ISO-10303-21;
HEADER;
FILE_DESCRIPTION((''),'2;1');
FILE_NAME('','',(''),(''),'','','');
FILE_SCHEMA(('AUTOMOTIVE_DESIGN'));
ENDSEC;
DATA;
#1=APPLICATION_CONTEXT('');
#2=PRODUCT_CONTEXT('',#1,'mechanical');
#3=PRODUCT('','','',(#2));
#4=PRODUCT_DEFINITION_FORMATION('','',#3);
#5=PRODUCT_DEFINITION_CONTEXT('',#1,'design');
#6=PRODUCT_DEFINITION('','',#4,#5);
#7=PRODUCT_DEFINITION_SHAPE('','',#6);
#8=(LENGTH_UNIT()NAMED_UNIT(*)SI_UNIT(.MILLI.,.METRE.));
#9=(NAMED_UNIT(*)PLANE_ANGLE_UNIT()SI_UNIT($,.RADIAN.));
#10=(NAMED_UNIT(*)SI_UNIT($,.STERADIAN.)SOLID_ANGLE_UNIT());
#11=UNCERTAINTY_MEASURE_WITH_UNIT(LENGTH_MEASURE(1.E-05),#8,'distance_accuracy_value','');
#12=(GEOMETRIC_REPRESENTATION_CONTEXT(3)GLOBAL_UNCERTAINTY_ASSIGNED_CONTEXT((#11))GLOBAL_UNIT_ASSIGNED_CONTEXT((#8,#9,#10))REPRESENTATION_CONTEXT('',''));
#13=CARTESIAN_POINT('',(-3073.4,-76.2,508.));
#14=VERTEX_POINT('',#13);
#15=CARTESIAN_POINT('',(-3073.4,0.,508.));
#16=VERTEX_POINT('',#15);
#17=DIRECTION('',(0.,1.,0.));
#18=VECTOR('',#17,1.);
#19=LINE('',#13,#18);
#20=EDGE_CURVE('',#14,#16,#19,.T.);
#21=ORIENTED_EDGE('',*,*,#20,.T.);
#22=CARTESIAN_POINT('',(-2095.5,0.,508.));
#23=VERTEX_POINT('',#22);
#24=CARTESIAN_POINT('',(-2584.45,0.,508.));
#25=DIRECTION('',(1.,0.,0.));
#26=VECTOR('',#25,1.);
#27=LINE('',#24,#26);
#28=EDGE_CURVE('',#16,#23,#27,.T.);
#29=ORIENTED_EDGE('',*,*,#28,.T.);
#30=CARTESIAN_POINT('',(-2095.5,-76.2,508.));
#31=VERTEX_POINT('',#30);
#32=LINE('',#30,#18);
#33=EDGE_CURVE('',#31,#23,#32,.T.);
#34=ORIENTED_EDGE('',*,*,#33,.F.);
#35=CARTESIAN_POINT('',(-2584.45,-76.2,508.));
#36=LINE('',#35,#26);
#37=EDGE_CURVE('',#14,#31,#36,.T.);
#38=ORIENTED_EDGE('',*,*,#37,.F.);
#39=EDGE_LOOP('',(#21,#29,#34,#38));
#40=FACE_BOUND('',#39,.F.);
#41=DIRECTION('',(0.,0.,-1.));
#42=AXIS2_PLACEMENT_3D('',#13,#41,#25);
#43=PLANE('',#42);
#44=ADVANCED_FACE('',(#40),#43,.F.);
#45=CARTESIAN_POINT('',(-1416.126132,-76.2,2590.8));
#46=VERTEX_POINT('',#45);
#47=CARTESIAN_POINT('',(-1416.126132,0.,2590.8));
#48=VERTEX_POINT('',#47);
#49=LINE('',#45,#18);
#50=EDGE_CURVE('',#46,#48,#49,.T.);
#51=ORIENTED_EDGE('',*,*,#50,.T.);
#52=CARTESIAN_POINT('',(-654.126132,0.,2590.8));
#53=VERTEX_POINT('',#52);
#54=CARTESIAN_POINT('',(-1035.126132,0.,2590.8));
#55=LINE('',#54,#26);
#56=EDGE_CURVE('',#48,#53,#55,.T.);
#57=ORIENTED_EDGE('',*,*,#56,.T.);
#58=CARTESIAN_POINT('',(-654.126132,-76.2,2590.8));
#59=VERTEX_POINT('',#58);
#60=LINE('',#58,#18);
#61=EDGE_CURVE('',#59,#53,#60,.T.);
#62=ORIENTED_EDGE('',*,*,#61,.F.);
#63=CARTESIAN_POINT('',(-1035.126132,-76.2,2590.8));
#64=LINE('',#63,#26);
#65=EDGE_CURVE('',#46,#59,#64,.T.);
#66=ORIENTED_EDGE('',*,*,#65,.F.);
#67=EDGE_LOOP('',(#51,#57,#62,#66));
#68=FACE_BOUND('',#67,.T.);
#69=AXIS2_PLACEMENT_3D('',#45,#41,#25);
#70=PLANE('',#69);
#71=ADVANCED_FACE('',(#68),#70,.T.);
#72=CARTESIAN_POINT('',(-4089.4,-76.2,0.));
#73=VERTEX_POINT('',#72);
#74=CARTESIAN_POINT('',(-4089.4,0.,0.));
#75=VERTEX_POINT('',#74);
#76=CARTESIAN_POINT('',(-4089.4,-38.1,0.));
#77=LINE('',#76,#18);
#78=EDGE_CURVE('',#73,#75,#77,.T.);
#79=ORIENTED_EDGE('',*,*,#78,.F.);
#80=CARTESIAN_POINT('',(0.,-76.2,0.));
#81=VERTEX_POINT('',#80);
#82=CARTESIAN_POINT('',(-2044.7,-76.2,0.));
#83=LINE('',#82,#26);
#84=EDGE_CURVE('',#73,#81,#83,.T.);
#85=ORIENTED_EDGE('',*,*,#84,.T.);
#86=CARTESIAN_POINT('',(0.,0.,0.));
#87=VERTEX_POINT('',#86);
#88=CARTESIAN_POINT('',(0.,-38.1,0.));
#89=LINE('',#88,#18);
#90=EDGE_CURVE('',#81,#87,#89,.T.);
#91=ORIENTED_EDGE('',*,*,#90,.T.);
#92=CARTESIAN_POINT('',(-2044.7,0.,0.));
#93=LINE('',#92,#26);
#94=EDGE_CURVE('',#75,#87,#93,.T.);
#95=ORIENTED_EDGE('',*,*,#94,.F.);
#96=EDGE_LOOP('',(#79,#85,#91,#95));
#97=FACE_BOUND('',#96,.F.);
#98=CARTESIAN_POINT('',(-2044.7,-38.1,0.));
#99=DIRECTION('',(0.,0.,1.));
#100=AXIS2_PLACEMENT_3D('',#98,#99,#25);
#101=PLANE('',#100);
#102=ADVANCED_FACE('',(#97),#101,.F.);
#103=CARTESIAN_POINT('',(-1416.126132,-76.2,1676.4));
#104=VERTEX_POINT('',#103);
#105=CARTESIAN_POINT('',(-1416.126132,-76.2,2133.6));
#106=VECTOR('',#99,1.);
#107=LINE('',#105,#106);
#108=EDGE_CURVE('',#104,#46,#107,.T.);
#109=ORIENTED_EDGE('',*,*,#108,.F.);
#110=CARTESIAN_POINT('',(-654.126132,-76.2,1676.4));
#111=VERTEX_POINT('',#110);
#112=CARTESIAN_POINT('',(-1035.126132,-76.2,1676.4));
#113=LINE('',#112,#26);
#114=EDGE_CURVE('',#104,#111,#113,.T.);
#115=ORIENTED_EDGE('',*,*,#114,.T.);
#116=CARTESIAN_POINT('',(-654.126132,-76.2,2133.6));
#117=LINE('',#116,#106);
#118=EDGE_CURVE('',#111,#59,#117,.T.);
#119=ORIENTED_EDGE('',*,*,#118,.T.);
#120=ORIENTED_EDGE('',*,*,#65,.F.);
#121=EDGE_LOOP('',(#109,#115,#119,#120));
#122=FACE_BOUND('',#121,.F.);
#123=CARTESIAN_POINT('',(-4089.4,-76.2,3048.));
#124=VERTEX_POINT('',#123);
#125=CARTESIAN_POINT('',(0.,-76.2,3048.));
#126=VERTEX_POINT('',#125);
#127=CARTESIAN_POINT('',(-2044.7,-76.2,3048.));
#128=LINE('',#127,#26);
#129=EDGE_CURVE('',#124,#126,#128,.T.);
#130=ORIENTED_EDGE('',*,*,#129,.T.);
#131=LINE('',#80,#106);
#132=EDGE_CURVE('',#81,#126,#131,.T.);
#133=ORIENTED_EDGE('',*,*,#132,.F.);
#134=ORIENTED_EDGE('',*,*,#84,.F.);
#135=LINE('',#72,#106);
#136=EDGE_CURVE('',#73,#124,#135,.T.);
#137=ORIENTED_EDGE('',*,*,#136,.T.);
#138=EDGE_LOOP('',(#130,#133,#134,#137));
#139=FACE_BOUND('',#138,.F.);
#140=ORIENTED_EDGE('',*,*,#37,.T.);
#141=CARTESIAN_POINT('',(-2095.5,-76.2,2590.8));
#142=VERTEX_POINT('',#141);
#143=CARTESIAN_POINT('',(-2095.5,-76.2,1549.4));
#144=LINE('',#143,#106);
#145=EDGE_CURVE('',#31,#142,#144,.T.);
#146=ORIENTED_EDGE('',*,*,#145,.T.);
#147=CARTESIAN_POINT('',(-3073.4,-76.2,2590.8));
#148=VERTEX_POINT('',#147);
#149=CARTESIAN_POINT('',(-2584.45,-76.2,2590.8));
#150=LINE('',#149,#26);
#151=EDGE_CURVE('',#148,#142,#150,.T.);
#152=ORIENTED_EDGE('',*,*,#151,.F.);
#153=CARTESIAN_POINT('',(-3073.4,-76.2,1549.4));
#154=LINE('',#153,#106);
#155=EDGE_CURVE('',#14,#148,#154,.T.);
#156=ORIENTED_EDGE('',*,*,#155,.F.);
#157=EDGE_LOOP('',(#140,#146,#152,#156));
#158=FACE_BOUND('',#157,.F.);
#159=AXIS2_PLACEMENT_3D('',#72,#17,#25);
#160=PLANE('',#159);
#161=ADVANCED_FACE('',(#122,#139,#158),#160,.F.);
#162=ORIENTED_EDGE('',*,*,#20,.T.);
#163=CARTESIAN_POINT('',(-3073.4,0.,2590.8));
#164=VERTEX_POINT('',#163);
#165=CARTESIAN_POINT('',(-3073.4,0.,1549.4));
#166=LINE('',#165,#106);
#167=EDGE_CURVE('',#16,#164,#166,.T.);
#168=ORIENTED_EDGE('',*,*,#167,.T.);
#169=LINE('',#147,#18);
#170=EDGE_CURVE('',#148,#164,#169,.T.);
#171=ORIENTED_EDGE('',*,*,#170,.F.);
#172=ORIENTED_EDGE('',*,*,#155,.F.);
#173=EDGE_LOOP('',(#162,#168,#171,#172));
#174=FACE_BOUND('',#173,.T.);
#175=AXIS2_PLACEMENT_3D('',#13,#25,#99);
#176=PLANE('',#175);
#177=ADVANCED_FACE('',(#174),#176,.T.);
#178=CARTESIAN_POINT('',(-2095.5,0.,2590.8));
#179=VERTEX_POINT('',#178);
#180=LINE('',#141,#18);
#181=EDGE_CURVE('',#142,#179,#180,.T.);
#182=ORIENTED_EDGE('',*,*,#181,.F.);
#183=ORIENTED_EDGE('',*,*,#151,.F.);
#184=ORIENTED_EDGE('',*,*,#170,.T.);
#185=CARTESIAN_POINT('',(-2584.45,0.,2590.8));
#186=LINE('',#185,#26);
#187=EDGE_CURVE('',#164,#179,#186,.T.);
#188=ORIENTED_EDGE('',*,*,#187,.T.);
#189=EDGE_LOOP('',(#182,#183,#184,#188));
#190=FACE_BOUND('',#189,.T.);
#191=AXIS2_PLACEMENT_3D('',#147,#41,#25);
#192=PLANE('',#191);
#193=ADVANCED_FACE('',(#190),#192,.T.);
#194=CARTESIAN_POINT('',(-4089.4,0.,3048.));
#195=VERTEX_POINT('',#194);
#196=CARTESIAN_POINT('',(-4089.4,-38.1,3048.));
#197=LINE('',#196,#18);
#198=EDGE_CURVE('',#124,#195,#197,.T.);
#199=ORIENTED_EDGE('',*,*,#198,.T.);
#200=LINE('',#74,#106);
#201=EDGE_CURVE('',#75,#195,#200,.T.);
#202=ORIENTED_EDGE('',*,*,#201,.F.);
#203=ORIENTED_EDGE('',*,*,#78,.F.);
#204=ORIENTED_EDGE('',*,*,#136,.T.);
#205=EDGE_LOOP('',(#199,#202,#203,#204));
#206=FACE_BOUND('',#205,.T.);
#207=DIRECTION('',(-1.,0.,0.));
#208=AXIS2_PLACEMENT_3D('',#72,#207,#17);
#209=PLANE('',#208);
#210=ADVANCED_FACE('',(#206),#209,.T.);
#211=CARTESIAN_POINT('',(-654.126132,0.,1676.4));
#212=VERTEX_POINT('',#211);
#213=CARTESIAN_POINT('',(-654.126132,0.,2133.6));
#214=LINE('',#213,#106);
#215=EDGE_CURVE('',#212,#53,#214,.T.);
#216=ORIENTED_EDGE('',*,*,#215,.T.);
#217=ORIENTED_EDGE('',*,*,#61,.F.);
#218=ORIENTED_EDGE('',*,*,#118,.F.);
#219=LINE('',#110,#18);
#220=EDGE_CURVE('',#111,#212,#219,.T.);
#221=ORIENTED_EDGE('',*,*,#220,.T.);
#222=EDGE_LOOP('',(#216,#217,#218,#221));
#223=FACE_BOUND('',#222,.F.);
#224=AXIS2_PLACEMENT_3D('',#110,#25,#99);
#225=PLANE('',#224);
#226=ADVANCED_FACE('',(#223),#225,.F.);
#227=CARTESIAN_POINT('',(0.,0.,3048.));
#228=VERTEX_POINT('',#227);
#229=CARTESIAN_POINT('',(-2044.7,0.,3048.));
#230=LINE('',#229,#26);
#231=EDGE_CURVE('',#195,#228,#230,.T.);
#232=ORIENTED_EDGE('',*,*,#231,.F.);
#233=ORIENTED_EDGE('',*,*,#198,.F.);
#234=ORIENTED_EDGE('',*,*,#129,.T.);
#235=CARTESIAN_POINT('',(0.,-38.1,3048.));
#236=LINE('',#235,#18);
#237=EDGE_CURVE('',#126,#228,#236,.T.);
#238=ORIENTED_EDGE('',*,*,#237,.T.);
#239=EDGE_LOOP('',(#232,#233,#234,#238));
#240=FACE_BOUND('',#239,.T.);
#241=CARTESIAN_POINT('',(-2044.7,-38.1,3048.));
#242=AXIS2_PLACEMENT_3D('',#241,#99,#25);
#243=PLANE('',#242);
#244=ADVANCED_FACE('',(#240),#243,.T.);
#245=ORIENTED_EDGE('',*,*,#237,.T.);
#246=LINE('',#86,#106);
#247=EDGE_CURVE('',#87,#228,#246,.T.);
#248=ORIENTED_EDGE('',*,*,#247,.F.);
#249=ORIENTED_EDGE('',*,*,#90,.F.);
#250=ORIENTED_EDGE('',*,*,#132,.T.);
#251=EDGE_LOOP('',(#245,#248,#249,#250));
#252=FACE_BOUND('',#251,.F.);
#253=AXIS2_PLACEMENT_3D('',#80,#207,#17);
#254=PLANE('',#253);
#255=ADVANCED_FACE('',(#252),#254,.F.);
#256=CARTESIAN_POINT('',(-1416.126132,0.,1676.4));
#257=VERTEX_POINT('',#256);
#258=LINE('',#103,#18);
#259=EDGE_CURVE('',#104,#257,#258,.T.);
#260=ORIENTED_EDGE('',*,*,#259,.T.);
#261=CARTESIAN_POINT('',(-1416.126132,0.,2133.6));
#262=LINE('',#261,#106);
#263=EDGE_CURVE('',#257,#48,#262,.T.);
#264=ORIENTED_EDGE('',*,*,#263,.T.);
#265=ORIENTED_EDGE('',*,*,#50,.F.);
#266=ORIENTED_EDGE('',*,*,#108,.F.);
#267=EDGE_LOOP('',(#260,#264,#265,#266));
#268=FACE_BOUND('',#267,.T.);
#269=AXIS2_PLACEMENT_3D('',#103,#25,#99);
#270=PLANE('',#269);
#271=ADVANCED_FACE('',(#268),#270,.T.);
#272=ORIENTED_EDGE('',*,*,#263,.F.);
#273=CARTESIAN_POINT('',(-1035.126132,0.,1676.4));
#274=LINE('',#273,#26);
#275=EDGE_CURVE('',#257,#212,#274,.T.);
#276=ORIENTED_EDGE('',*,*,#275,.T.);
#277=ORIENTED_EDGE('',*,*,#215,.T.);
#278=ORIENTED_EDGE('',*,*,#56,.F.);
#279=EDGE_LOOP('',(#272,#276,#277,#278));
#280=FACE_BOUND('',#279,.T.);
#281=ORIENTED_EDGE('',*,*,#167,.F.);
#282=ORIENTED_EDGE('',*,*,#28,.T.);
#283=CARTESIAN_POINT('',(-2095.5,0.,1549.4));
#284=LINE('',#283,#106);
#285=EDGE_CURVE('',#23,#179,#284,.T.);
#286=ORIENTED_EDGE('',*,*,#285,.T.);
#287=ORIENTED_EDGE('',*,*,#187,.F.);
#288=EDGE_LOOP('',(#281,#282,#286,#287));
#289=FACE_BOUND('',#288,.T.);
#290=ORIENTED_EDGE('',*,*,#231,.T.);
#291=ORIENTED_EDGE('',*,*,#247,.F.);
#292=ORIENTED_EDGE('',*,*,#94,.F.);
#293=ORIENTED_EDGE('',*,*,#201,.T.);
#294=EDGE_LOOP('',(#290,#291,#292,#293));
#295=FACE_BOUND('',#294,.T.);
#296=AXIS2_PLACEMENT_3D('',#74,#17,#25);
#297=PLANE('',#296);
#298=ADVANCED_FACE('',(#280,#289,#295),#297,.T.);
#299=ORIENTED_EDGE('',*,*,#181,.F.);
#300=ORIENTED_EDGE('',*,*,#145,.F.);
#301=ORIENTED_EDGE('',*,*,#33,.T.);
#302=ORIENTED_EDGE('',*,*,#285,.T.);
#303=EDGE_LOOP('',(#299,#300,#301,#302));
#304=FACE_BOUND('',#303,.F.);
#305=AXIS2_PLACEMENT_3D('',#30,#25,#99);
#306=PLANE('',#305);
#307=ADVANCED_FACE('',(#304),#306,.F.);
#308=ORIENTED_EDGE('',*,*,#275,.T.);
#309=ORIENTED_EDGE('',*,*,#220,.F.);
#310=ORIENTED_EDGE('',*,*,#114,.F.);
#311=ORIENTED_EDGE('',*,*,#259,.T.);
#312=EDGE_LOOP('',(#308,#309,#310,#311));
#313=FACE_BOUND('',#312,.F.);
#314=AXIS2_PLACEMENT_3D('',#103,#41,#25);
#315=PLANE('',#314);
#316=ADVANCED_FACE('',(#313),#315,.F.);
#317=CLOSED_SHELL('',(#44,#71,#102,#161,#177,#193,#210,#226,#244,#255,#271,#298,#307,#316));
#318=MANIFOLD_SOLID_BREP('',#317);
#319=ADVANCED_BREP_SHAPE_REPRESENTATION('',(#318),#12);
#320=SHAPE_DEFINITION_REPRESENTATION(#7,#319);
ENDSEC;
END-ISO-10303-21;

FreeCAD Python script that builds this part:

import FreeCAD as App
import Part
import Sketcher
from FreeCAD import Vector
Q = App.Units.Quantity


def add_polygon(sketch, points):
    """Adds a closed chain of lines whose ends are joined by coincident constraints."""
    first, n = sketch.GeometryCount, len(points)
    for a, b in zip(points, points[1:] + points[:1]):
        sketch.addGeometry(Part.LineSegment(App.Vector(*a, 0), App.Vector(*b, 0)), False)
    for i in range(n):
        sketch.addConstraint(Sketcher.Constraint("Coincident", first + i, 2, first + (i + 1) % n, 1))

doc = App.newDocument("Part")
body = doc.addObject("PartDesign::Body", "Body")

# Sketch on XY plane
sketch1 = body.newObject("Sketcher::SketchObject", "Sketch")
sketch1.AttachmentSupport = (doc.getObject("XY_Plane"), [""])
sketch1.MapMode = "FlatFace"
add_polygon(sketch1, [(-4089, 0), (-4089, -76), (0, -76), (0, 0)])  # lines 0-3
sketch1.addConstraint([
    Sketcher.Constraint("Vertical", 0),
    Sketcher.Constraint("Horizontal", 1),
    Sketcher.Constraint("Vertical", 2),
    Sketcher.Constraint("Horizontal", 3),
    Sketcher.Constraint("Coincident", 2, 2, -1, 1),
    Sketcher.Constraint("DistanceX", 1, 1, 1, 2, Q("161 in")),
    Sketcher.Constraint("DistanceY", 0, 2, 0, 1, Q("3 in")),
])
pad1 = body.newObject("PartDesign::Pad", "Pad")
pad1.Profile = sketch1
pad1.Length = Q("120 in")

# Sketch on XZ plane
sketch2 = body.newObject("Sketcher::SketchObject", "Sketch001")
sketch2.AttachmentSupport = (doc.getObject("XZ_Plane"), [""])
sketch2.MapMode = "FlatFace"
sketch2.AttachmentOffset = App.Placement(Vector(0, 0, 3 * 25.4), App.Rotation())
add_polygon(sketch2, [(-3073, 2591), (-3073, 508), (-2096, 508), (-2096, 2591)])  # lines 0-3
sketch2.addConstraint([
    Sketcher.Constraint("Vertical", 0),
    Sketcher.Constraint("Horizontal", 1),
    Sketcher.Constraint("Vertical", 2),
    Sketcher.Constraint("Horizontal", 3),
    Sketcher.Constraint("DistanceY", 0, 2, 0, 1, Q("82 in")),
    Sketcher.Constraint("DistanceX", 1, 1, 1, 2, Q("38.5 in")),
    Sketcher.Constraint("DistanceX", 0, 2, -1, 1, Q("121 in")),
    Sketcher.Constraint("DistanceY", -1, 1, 0, 2, Q("20 in")),
])
pocket1 = body.newObject("PartDesign::Pocket", "Pocket")
pocket1.Profile = sketch2
pocket1.Type = "ThroughAll"

# Sketch on XZ plane
sketch3 = body.newObject("Sketcher::SketchObject", "Sketch002")
sketch3.AttachmentSupport = (doc.getObject("XZ_Plane"), [""])
sketch3.MapMode = "FlatFace"
sketch3.AttachmentOffset = App.Placement(Vector(0, 0, 3 * 25.4), App.Rotation())
add_polygon(sketch3, [(-1416, 2591), (-1416, 1676), (-654, 1676), (-654, 2591)])  # lines 0-3
sketch3.addConstraint([
    Sketcher.Constraint("Vertical", 0),
    Sketcher.Constraint("Horizontal", 1),
    Sketcher.Constraint("Vertical", 2),
    Sketcher.Constraint("Horizontal", 3),
    Sketcher.Constraint("DistanceX", 1, 1, 1, 2, Q("30 in")),
    Sketcher.Constraint("DistanceY", 0, 2, 0, 1, Q("36 in")),
    Sketcher.Constraint("DistanceY", -1, 1, 0, 2, Q("66 in")),
    Sketcher.Constraint("DistanceX", 0, 2, -1, 1, Q("1416.126132 mm")),
])
pocket2 = body.newObject("PartDesign::Pocket", "Pocket001")
pocket2.Profile = sketch3
pocket2.Type = "ThroughAll"

doc.recompute()
